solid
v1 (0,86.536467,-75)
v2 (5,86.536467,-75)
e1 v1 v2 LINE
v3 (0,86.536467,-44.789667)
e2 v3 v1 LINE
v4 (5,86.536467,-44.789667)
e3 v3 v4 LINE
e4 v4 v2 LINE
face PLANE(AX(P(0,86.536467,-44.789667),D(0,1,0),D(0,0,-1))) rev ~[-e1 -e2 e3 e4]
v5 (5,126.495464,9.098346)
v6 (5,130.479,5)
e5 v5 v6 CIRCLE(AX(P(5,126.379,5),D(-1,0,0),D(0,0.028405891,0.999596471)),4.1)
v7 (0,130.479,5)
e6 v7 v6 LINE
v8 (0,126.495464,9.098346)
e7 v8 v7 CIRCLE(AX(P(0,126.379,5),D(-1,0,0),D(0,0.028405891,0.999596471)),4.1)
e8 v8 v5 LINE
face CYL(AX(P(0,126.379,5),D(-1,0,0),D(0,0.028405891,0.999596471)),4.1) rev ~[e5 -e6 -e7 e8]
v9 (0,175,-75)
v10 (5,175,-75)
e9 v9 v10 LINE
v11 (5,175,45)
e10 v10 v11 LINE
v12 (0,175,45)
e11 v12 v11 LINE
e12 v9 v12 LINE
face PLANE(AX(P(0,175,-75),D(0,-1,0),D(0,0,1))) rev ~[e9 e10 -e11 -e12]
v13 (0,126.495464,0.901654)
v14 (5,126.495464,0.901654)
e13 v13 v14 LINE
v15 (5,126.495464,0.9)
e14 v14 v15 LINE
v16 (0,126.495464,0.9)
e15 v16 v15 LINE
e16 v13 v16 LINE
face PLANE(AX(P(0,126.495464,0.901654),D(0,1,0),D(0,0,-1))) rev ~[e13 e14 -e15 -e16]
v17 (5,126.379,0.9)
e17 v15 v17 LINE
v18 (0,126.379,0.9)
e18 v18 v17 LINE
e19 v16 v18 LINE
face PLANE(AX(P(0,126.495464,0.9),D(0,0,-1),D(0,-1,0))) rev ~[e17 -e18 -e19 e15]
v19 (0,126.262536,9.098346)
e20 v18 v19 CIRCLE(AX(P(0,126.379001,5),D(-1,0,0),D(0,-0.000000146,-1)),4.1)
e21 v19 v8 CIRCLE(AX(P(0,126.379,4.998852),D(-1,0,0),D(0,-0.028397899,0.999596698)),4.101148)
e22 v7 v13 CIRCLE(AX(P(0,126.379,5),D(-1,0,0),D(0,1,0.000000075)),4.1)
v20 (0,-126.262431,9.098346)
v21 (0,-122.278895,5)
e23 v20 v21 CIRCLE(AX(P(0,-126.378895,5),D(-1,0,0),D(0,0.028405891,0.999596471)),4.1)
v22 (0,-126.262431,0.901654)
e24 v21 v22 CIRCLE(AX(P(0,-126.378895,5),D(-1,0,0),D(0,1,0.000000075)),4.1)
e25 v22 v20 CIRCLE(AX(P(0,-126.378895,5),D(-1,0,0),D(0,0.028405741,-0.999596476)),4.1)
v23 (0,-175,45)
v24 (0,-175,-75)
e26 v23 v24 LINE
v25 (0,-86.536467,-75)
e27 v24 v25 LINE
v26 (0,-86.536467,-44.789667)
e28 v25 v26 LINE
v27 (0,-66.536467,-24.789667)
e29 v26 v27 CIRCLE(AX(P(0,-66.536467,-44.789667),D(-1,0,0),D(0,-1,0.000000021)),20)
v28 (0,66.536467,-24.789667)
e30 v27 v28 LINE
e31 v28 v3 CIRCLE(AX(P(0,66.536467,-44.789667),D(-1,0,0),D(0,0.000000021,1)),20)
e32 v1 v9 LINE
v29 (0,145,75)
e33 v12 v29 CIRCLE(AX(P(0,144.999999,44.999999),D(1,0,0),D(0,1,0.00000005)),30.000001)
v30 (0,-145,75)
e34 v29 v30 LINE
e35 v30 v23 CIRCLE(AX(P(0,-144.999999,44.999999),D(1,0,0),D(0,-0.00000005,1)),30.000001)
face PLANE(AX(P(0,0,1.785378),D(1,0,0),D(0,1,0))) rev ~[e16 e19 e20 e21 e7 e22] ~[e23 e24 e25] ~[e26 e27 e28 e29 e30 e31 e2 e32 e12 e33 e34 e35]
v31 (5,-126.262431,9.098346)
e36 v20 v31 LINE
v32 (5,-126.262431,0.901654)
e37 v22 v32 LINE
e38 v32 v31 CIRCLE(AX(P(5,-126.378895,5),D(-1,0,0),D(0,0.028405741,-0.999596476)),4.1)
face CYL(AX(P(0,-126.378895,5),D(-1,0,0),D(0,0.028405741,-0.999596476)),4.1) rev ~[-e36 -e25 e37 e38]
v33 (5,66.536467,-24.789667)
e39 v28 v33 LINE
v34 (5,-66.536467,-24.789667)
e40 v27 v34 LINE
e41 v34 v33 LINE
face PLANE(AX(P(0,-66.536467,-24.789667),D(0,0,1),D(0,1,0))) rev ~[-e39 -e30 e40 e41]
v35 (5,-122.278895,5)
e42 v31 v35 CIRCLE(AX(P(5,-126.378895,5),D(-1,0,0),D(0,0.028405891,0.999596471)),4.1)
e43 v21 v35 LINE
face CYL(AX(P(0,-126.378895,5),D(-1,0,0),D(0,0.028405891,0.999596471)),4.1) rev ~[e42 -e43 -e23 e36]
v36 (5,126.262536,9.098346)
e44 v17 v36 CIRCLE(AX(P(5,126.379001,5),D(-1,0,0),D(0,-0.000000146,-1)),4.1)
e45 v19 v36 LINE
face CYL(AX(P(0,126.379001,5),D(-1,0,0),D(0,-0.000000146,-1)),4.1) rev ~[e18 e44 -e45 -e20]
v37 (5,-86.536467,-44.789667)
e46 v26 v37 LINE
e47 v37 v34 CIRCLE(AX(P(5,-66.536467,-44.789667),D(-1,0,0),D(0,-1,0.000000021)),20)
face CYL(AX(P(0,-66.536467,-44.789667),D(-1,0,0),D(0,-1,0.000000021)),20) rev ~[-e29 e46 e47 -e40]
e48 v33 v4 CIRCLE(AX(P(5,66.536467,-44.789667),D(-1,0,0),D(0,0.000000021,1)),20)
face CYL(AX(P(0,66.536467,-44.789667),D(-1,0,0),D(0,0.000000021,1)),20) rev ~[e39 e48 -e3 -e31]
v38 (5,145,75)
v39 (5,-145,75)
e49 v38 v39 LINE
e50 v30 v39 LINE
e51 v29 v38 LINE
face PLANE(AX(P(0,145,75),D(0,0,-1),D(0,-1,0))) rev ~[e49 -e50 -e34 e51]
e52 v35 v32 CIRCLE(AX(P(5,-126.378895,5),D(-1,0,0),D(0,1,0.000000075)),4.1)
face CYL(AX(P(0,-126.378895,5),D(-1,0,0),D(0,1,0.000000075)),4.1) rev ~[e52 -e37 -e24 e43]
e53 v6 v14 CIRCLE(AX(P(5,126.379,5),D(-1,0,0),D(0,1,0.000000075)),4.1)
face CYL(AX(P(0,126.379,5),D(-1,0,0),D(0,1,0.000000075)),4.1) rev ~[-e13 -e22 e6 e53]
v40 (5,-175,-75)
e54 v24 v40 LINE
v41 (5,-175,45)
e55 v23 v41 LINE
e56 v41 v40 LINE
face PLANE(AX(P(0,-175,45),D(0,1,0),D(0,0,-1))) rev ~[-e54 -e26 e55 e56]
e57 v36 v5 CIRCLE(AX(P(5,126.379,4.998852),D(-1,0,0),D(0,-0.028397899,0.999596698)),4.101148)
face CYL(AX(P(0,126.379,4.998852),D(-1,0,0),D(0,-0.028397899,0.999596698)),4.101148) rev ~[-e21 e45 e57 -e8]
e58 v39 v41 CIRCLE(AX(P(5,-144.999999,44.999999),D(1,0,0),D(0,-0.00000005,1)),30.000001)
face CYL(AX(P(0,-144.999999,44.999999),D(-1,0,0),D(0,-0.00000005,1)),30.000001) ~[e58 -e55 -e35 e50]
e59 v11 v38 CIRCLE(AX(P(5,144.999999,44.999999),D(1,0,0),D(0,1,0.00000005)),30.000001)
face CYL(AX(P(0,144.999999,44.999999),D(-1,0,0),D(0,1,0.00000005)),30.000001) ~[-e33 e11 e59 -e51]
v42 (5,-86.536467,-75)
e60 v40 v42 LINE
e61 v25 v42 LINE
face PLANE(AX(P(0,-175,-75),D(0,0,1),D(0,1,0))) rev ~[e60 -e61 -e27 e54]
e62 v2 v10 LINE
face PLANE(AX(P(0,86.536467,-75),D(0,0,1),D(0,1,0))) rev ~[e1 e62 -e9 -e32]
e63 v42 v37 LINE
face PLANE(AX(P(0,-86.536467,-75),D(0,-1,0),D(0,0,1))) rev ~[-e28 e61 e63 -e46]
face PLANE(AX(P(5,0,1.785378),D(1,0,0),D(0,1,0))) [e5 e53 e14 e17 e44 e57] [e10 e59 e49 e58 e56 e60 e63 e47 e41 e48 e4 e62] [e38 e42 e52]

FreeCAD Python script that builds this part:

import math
import FreeCAD as App
import Part
import Sketcher

doc = App.newDocument("Part")
params = doc.addObject("Spreadsheet::Sheet", "Params")
for row, (alias, value) in enumerate([
    ("sketch1_radius", "30.000001 mm"),
    ("sketch1_radius2", "20 mm"),
    ("sketch1_radius3", "4.1 mm"),
    ("sketch1_width", "290 mm"),
    ("sketch1_height", "120 mm"),
    ("pad1_length", "5 mm"),
], start=1):
    params.set(f"A{row}", alias)
    params.set(f"B{row}", "=" + value)
    params.setAlias(f"B{row}", alias)

body = doc.addObject("PartDesign::Body", "Body")

# Sketch on YZ plane
sketch1 = body.newObject("Sketcher::SketchObject", "Sketch")
sketch1.AttachmentSupport = (doc.getObject("YZ_Plane"), [""])
sketch1.MapMode = "FlatFace"
sketch1.addGeometry(Part.LineSegment(App.Vector(86.536467, -75, 0), App.Vector(175, -75, 0)), False)
sketch1.addGeometry(Part.LineSegment(App.Vector(175, -75, 0), App.Vector(175, 45, 0)), False)
sketch1.addGeometry(Part.ArcOfCircle(Part.Circle(App.Vector(144.999999, 44.999999, 0), App.Vector(0, 0, 1), 30.000001), math.radians(0.000003), math.radians(89.999997)), False)
sketch1.addGeometry(Part.LineSegment(App.Vector(145, 75, 0), App.Vector(-145, 75, 0)), False)
sketch1.addGeometry(Part.ArcOfCircle(Part.Circle(App.Vector(-144.999999, 44.999999, 0), App.Vector(0, 0, 1), 30.000001), math.radians(90.000003), math.radians(179.999997)), False)
sketch1.addGeometry(Part.LineSegment(App.Vector(-175, 45, 0), App.Vector(-175, -75, 0)), False)
sketch1.addGeometry(Part.LineSegment(App.Vector(-175, -75, 0), App.Vector(-86.536467, -75, 0)), False)
sketch1.addGeometry(Part.LineSegment(App.Vector(-86.536467, -75, 0), App.Vector(-86.536467, -44.789667, 0)), False)
sketch1.addGeometry(Part.ArcOfCircle(Part.Circle(App.Vector(-66.536467, -44.789667, 0), App.Vector(0, 0, 1), 20), math.radians(90.000001), math.radians(179.999999)), False)
sketch1.addGeometry(Part.LineSegment(App.Vector(-66.536467, -24.789667, 0), App.Vector(66.536467, -24.789667, 0)), False)
sketch1.addGeometry(Part.ArcOfCircle(Part.Circle(App.Vector(66.536467, -44.789667, 0), App.Vector(0, 0, 1), 20), math.radians(0.000001), math.radians(89.999999)), False)
sketch1.addGeometry(Part.LineSegment(App.Vector(86.536467, -44.789667, 0), App.Vector(86.536467, -75, 0)), False)
sketch1.addGeometry(Part.ArcOfCircle(Part.Circle(App.Vector(-126.378895, 5, 0), App.Vector(0, 0, 1), 4.1), math.radians(88.372252), math.radians(271.627748)), False)
sketch1.addGeometry(Part.ArcOfCircle(Part.Circle(App.Vector(-126.378895, 5, 0), App.Vector(0, 0, 1), 4.1), math.radians(-0.000004), math.radians(88.372243)), False)
sketch1.addGeometry(Part.ArcOfCircle(Part.Circle(App.Vector(-126.378895, 5, 0), App.Vector(0, 0, 1), 4.1), math.radians(-88.372243), math.radians(0.000004)), False)
sketch1.addGeometry(Part.ArcOfCircle(Part.Circle(App.Vector(126.379, 4.998852, 0), App.Vector(0, 0, 1), 4.101148), math.radians(88.372701), math.radians(91.627299)), False)
sketch1.addGeometry(Part.ArcOfCircle(Part.Circle(App.Vector(126.379, 5, 0), App.Vector(0, 0, 1), 4.1), math.radians(-0.000004), math.radians(88.372243)), False)
sketch1.addGeometry(Part.ArcOfCircle(Part.Circle(App.Vector(126.379, 5, 0), App.Vector(0, 0, 1), 4.1), math.radians(-88.372243), math.radians(0.000004)), False)
sketch1.addGeometry(Part.LineSegment(App.Vector(126.495464, 0.901654, 0), App.Vector(126.495464, 0.9, 0)), False)
sketch1.addGeometry(Part.LineSegment(App.Vector(126.495464, 0.9, 0), App.Vector(126.379, 0.9, 0)), False)
sketch1.addGeometry(Part.ArcOfCircle(Part.Circle(App.Vector(126.379001, 5, 0), App.Vector(0, 0, 1), 4.1), math.radians(91.627763), math.radians(269.999992)), False)
sketch1.addConstraint(Sketcher.Constraint("Coincident", 0, 2, 1, 1))
sketch1.addConstraint(Sketcher.Constraint("Tangent", 1, 2, 2, 1))
sketch1.addConstraint(Sketcher.Constraint("Tangent", 2, 2, 3, 1))
sketch1.addConstraint(Sketcher.Constraint("Tangent", 3, 2, 4, 1))
sketch1.addConstraint(Sketcher.Constraint("Tangent", 4, 2, 5, 1))
sketch1.addConstraint(Sketcher.Constraint("Coincident", 5, 2, 6, 1))
sketch1.addConstraint(Sketcher.Constraint("Coincident", 6, 2, 7, 1))
sketch1.addConstraint(Sketcher.Constraint("Tangent", 7, 2, 8, 2))
sketch1.addConstraint(Sketcher.Constraint("Tangent", 8, 1, 9, 1))
sketch1.addConstraint(Sketcher.Constraint("Tangent", 9, 2, 10, 2))
sketch1.addConstraint(Sketcher.Constraint("Tangent", 10, 1, 11, 1))
sketch1.addConstraint(Sketcher.Constraint("Coincident", 11, 2, 0, 1))
sketch1.addConstraint(Sketcher.Constraint("Tangent", 12, 1, 13, 2))
sketch1.addConstraint(Sketcher.Constraint("Tangent", 13, 1, 14, 2))
sketch1.addConstraint(Sketcher.Constraint("Tangent", 14, 1, 12, 2))
sketch1.addConstraint(Sketcher.Constraint("Coincident", 15, 1, 16, 2))
sketch1.addConstraint(Sketcher.Constraint("Tangent", 16, 1, 17, 2))
sketch1.addConstraint(Sketcher.Constraint("Coincident", 17, 1, 18, 1))
sketch1.addConstraint(Sketcher.Constraint("Coincident", 18, 2, 19, 1))
sketch1.addConstraint(Sketcher.Constraint("Tangent", 19, 2, 20, 2))
sketch1.addConstraint(Sketcher.Constraint("Coincident", 20, 1, 15, 2))
sketch1.addConstraint(Sketcher.Constraint("Horizontal", 0))
sketch1.addConstraint(Sketcher.Constraint("Vertical", 1))
sketch1.addConstraint(Sketcher.Constraint("Horizontal", 3))
sketch1.addConstraint(Sketcher.Constraint("Vertical", 5))
sketch1.addConstraint(Sketcher.Constraint("Horizontal", 6))
sketch1.addConstraint(Sketcher.Constraint("Vertical", 7))
sketch1.addConstraint(Sketcher.Constraint("Horizontal", 9))
sketch1.addConstraint(Sketcher.Constraint("Vertical", 11))
sketch1.addConstraint(Sketcher.Constraint("Vertical", 18))
sketch1.addConstraint(Sketcher.Constraint("Horizontal", 19))
sketch1.addConstraint(Sketcher.Constraint("Coincident", 20, 3, 16, 3))
sketch1.addConstraint(Sketcher.Constraint("Equal", 2, 4))
sketch1.addConstraint(Sketcher.Constraint("Equal", 8, 10))
sketch1.addConstraint(Sketcher.Constraint("Equal", 14, 16))
sketch1.addConstraint(Sketcher.Constraint("Equal", 16, 17))
sketch1.addConstraint(Sketcher.Constraint("Equal", 17, 20))
sketch1.addConstraint(Sketcher.Constraint("Symmetric", 0, 2, 5, 2, -2))
sketch1.addConstraint(Sketcher.Constraint("Horizontal", 14, 3, 16, 3))
sketch1.addConstraint(Sketcher.Constraint("Horizontal", 20, 3, 13, 1))
sketch1.addConstraint(Sketcher.Constraint("Horizontal", 12, 1, 15, 1))
sketch1.addConstraint(Sketcher.Constraint("Horizontal", 13, 1, 16, 1))
sketch1.addConstraint(Sketcher.Constraint("Horizontal", 14, 1, 17, 1))
sketch1.addConstraint(Sketcher.Constraint("Horizontal", 15, 1, 20, 1))
sketch1.addConstraint(Sketcher.Constraint("Vertical", 12, 1, 14, 1))
sketch1.addConstraint(Sketcher.Constraint("Equal", 0, 6))
sketch1.addConstraint(Sketcher.Constraint("Radius", 2, 30.000001))
sketch1.addConstraint(Sketcher.Constraint("Radius", 8, 20.0))
sketch1.addConstraint(Sketcher.Constraint("Radius", 12, 4.1))
sketch1.addConstraint(Sketcher.Constraint("DistanceX", 3, 2, 3, 1, 290.0))
sketch1.addConstraint(Sketcher.Constraint("DistanceY", 1, 1, 1, 2, 120.0))
sketch1.addConstraint(Sketcher.Constraint("DistanceY", -1, 1, 2, 3, 44.999999))
sketch1.addConstraint(Sketcher.Constraint("DistanceY", -1, 1, 12, 3, 5.0))
sketch1.addConstraint(Sketcher.Constraint("Radius", 15, 4.101148))
sketch1.addConstraint(Sketcher.Constraint("DistanceX", -1, 1, 15, 3, 126.379))
sketch1.addConstraint(Sketcher.Constraint("DistanceX", 0, 1, 0, 2, 88.463533))
sketch1.addConstraint(Sketcher.Constraint("DistanceX", 19, 2, 19, 1, 0.116464))
sketch1.addConstraint(Sketcher.Constraint("DistanceY", 7, 1, 7, 2, 30.210333))
sketch1.addConstraint(Sketcher.Constraint("DistanceX", 12, 1, -1, 1, 126.262431))
sketch1.setExpression("Constraints[46]", "Params.sketch1_radius")
sketch1.setExpression("Constraints[47]", "Params.sketch1_radius2")
sketch1.setExpression("Constraints[48]", "Params.sketch1_radius3")
sketch1.setExpression("Constraints[49]", "Params.sketch1_width")
sketch1.setExpression("Constraints[50]", "Params.sketch1_height")
pad1 = body.newObject("PartDesign::Pad", "Pad")
pad1.Profile = sketch1
pad1.setExpression("Length", "Params.pad1_length")

doc.recompute()
